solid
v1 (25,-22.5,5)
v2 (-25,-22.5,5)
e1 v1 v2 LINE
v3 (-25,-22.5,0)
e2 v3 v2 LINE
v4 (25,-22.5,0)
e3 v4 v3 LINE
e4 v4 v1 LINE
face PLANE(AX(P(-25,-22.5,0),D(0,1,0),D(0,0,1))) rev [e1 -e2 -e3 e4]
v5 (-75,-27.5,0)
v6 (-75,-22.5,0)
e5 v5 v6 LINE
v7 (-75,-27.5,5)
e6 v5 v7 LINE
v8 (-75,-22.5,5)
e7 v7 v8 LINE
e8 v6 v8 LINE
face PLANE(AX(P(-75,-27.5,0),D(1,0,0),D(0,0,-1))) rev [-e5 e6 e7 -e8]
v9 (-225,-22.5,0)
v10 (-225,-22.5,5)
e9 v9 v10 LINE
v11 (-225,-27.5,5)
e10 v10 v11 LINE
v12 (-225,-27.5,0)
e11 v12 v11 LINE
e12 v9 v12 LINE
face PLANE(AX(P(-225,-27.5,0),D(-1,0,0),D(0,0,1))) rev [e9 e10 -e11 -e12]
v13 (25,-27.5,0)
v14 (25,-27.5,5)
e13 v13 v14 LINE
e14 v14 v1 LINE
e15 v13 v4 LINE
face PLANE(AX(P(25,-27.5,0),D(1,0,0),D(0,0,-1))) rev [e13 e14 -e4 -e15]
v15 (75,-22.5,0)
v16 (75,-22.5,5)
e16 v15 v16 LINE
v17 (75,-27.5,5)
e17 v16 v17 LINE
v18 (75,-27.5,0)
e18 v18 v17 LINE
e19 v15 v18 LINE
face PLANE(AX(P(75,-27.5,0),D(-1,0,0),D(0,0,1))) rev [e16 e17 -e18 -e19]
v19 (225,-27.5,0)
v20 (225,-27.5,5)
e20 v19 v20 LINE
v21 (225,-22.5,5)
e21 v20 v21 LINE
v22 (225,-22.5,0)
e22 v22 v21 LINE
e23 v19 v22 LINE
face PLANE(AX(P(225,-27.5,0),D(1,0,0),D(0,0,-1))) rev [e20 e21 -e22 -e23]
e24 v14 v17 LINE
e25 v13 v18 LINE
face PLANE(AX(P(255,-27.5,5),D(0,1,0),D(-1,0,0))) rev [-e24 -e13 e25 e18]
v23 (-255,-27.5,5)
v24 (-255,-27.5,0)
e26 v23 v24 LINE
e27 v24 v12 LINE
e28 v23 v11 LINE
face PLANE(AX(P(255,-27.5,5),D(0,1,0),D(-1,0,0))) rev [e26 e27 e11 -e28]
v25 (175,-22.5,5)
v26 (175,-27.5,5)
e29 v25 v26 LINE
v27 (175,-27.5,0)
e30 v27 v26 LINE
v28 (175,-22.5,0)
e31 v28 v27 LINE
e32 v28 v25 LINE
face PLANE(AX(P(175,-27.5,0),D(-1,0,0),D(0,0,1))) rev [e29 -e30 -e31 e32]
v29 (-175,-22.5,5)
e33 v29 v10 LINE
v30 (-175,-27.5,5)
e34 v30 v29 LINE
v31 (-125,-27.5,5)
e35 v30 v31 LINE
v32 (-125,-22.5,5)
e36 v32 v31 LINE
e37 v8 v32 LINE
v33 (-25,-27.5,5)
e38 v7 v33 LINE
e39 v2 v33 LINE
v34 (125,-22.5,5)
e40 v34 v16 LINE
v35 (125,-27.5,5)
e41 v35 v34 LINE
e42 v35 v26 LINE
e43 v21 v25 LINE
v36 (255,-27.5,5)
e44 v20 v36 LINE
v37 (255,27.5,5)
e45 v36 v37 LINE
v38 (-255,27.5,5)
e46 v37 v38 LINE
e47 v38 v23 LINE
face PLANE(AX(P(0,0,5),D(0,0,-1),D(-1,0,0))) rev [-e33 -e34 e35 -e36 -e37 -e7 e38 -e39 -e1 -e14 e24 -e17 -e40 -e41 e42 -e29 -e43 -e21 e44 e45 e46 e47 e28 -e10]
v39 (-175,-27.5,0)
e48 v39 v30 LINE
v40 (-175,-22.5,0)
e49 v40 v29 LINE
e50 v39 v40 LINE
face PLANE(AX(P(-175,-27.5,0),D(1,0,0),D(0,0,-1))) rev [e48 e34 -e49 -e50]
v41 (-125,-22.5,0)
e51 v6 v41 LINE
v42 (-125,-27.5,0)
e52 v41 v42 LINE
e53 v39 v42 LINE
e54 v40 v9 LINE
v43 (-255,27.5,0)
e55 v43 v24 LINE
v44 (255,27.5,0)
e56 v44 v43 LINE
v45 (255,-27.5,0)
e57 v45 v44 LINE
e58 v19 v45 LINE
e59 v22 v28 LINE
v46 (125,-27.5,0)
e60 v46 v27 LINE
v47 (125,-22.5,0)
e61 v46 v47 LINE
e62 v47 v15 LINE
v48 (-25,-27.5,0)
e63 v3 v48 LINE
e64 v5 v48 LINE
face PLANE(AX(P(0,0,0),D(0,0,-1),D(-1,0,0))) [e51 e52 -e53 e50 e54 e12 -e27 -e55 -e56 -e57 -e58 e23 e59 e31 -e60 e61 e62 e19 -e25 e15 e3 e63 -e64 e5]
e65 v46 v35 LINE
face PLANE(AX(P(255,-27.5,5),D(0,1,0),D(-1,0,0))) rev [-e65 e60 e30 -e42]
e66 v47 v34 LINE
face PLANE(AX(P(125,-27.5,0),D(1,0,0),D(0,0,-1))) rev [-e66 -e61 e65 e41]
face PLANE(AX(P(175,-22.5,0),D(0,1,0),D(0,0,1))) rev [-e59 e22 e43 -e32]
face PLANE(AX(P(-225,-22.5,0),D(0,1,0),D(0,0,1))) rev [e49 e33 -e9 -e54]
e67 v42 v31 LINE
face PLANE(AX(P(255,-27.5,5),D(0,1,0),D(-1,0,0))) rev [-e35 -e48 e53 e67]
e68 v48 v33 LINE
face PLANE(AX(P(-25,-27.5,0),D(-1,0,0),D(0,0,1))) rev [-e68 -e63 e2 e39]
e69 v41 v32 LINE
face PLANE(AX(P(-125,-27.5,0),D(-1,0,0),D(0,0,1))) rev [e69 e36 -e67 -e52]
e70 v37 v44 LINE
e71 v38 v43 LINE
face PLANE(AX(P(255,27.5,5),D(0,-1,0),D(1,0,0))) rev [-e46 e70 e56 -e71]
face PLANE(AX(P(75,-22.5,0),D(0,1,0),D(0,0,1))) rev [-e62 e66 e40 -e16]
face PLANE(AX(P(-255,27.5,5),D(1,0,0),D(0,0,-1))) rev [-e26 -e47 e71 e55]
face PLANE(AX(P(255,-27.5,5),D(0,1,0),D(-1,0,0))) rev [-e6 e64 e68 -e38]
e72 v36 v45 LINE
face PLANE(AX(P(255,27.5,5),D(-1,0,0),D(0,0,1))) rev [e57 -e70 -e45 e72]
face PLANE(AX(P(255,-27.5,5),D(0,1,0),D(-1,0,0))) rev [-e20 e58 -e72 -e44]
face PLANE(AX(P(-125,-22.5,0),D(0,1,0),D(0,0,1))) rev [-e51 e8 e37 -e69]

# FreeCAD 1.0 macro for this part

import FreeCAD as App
import Part
import Sketcher

doc = App.newDocument("Part")
body = doc.addObject("PartDesign::Body", "Body")

sketch1 = body.newObject("Sketcher::SketchObject", "Sketch")
sketch1.AttachmentSupport = (doc.getObject("XY_Plane"), [""])
sketch1.MapMode = "FlatFace"
sketch1.addGeometry([
    Part.LineSegment(App.Vector(-255, 28, 0), App.Vector(-255, -28, 0)),
    Part.LineSegment(App.Vector(-255, -28, 0), App.Vector(255, -28, 0)),
    Part.LineSegment(App.Vector(255, -28, 0), App.Vector(255, 28, 0)),
    Part.LineSegment(App.Vector(255, 28, 0), App.Vector(-255, 28, 0)),
], False)
sketch1.addConstraint([
    Sketcher.Constraint("Coincident", 0, 2, 1, 1),
    Sketcher.Constraint("Coincident", 1, 2, 2, 1),
    Sketcher.Constraint("Coincident", 2, 2, 3, 1),
    Sketcher.Constraint("Coincident", 3, 2, 0, 1),
    Sketcher.Constraint("Vertical", 0),
    Sketcher.Constraint("Horizontal", 1),
    Sketcher.Constraint("Vertical", 2),
    Sketcher.Constraint("Horizontal", 3),
    Sketcher.Constraint("Symmetric", 0, 2, 2, 2, -1, 1),
    Sketcher.Constraint("DistanceX", 1, 1, 1, 2, 510.0),
    Sketcher.Constraint("DistanceY", 0, 2, 0, 1, 55.0),
])
pad1 = body.newObject("PartDesign::Pad", "Pad")
pad1.Profile = sketch1
pad1.Length = 5

sketch2 = body.newObject("Sketcher::SketchObject", "Sketch001")
sketch2.AttachmentSupport = (doc.getObject("XY_Plane"), [""])
sketch2.MapMode = "FlatFace"
sketch2.AttachmentOffset = App.Placement(App.Vector(0, 0, 5), App.Rotation())
sketch2.addGeometry([
    Part.LineSegment(App.Vector(-25, -22, 0), App.Vector(-25, -28, 0)),
    Part.LineSegment(App.Vector(-25, -28, 0), App.Vector(25, -28, 0)),
    Part.LineSegment(App.Vector(25, -28, 0), App.Vector(25, -22, 0)),
    Part.LineSegment(App.Vector(25, -22, 0), App.Vector(-25, -22, 0)),
    Part.LineSegment(App.Vector(-125, -22, 0), App.Vector(-125, -28, 0)),
    Part.LineSegment(App.Vector(-125, -28, 0), App.Vector(-75, -28, 0)),
    Part.LineSegment(App.Vector(-75, -28, 0), App.Vector(-75, -22, 0)),
    Part.LineSegment(App.Vector(-75, -22, 0), App.Vector(-125, -22, 0)),
    Part.LineSegment(App.Vector(75, -22, 0), App.Vector(75, -28, 0)),
    Part.LineSegment(App.Vector(75, -28, 0), App.Vector(125, -28, 0)),
    Part.LineSegment(App.Vector(125, -28, 0), App.Vector(125, -22, 0)),
    Part.LineSegment(App.Vector(125, -22, 0), App.Vector(75, -22, 0)),
    Part.LineSegment(App.Vector(175, -22, 0), App.Vector(175, -28, 0)),
    Part.LineSegment(App.Vector(175, -28, 0), App.Vector(225, -28, 0)),
    Part.LineSegment(App.Vector(225, -28, 0), App.Vector(225, -22, 0)),
    Part.LineSegment(App.Vector(225, -22, 0), App.Vector(175, -22, 0)),
    Part.LineSegment(App.Vector(-225, -22, 0), App.Vector(-225, -28, 0)),
    Part.LineSegment(App.Vector(-225, -28, 0), App.Vector(-175, -28, 0)),
    Part.LineSegment(App.Vector(-175, -28, 0), App.Vector(-175, -22, 0)),
    Part.LineSegment(App.Vector(-175, -22, 0), App.Vector(-225, -22, 0)),
], False)
sketch2.addConstraint([
    Sketcher.Constraint("Coincident", 0, 2, 1, 1),
    Sketcher.Constraint("Coincident", 1, 2, 2, 1),
    Sketcher.Constraint("Coincident", 2, 2, 3, 1),
    Sketcher.Constraint("Coincident", 3, 2, 0, 1),
    Sketcher.Constraint("Coincident", 4, 2, 5, 1),
    Sketcher.Constraint("Coincident", 5, 2, 6, 1),
    Sketcher.Constraint("Coincident", 6, 2, 7, 1),
    Sketcher.Constraint("Coincident", 7, 2, 4, 1),
    Sketcher.Constraint("Coincident", 8, 2, 9, 1),
    Sketcher.Constraint("Coincident", 9, 2, 10, 1),
    Sketcher.Constraint("Coincident", 10, 2, 11, 1),
    Sketcher.Constraint("Coincident", 11, 2, 8, 1),
    Sketcher.Constraint("Coincident", 12, 2, 13, 1),
    Sketcher.Constraint("Coincident", 13, 2, 14, 1),
    Sketcher.Constraint("Coincident", 14, 2, 15, 1),
    Sketcher.Constraint("Coincident", 15, 2, 12, 1),
    Sketcher.Constraint("Coincident", 16, 2, 17, 1),
    Sketcher.Constraint("Coincident", 17, 2, 18, 1),
    Sketcher.Constraint("Coincident", 18, 2, 19, 1),
    Sketcher.Constraint("Coincident", 19, 2, 16, 1),
    Sketcher.Constraint("Vertical", 0),
    Sketcher.Constraint("Horizontal", 1),
    Sketcher.Constraint("Vertical", 2),
    Sketcher.Constraint("Horizontal", 3),
    Sketcher.Constraint("Vertical", 4),
    Sketcher.Constraint("Horizontal", 5),
    Sketcher.Constraint("Vertical", 6),
    Sketcher.Constraint("Horizontal", 7),
    Sketcher.Constraint("Vertical", 8),
    Sketcher.Constraint("Horizontal", 9),
    Sketcher.Constraint("Vertical", 10),
    Sketcher.Constraint("Horizontal", 11),
    Sketcher.Constraint("Vertical", 12),
    Sketcher.Constraint("Horizontal", 13),
    Sketcher.Constraint("Vertical", 14),
    Sketcher.Constraint("Horizontal", 15),
    Sketcher.Constraint("Vertical", 16),
    Sketcher.Constraint("Horizontal", 17),
    Sketcher.Constraint("Vertical", 18),
    Sketcher.Constraint("Horizontal", 19),
    Sketcher.Constraint("Symmetric", 5, 2, 8, 2, -2),
    Sketcher.Constraint("Symmetric", 7, 2, 10, 2, -2),
    Sketcher.Constraint("Symmetric", 13, 2, 16, 2, -2),
    Sketcher.Constraint("Symmetric", 15, 2, 18, 2, -2),
    Sketcher.Constraint("Horizontal", 1, 2, 4, 2),
    Sketcher.Constraint("Horizontal", 3, 2, 6, 2),
    Sketcher.Constraint("Horizontal", 9, 2, 12, 2),
    Sketcher.Constraint("Horizontal", 11, 2, 14, 2),
    Sketcher.Constraint("Equal", 3, 5),
    Sketcher.Constraint("Equal", 11, 13),
    Sketcher.Constraint("DistanceX", 1, 1, 1, 2, 50.0),
    Sketcher.Constraint("DistanceY", 0, 2, 0, 1, 5.0),
    Sketcher.Constraint("DistanceX", 0, 2, -1, 1, 25.0),
    Sketcher.Constraint("DistanceX", 4, 2, -1, 1, 125.0),
    Sketcher.Constraint("DistanceX", -1, 1, 12, 2, 175.0),
    Sketcher.Constraint("DistanceY", 0, 2, -1, 1, 27.5),
])
pocket1 = body.newObject("PartDesign::Pocket", "Pocket")
pocket1.Profile = sketch2
pocket1.Length = 5

doc.recompute()
